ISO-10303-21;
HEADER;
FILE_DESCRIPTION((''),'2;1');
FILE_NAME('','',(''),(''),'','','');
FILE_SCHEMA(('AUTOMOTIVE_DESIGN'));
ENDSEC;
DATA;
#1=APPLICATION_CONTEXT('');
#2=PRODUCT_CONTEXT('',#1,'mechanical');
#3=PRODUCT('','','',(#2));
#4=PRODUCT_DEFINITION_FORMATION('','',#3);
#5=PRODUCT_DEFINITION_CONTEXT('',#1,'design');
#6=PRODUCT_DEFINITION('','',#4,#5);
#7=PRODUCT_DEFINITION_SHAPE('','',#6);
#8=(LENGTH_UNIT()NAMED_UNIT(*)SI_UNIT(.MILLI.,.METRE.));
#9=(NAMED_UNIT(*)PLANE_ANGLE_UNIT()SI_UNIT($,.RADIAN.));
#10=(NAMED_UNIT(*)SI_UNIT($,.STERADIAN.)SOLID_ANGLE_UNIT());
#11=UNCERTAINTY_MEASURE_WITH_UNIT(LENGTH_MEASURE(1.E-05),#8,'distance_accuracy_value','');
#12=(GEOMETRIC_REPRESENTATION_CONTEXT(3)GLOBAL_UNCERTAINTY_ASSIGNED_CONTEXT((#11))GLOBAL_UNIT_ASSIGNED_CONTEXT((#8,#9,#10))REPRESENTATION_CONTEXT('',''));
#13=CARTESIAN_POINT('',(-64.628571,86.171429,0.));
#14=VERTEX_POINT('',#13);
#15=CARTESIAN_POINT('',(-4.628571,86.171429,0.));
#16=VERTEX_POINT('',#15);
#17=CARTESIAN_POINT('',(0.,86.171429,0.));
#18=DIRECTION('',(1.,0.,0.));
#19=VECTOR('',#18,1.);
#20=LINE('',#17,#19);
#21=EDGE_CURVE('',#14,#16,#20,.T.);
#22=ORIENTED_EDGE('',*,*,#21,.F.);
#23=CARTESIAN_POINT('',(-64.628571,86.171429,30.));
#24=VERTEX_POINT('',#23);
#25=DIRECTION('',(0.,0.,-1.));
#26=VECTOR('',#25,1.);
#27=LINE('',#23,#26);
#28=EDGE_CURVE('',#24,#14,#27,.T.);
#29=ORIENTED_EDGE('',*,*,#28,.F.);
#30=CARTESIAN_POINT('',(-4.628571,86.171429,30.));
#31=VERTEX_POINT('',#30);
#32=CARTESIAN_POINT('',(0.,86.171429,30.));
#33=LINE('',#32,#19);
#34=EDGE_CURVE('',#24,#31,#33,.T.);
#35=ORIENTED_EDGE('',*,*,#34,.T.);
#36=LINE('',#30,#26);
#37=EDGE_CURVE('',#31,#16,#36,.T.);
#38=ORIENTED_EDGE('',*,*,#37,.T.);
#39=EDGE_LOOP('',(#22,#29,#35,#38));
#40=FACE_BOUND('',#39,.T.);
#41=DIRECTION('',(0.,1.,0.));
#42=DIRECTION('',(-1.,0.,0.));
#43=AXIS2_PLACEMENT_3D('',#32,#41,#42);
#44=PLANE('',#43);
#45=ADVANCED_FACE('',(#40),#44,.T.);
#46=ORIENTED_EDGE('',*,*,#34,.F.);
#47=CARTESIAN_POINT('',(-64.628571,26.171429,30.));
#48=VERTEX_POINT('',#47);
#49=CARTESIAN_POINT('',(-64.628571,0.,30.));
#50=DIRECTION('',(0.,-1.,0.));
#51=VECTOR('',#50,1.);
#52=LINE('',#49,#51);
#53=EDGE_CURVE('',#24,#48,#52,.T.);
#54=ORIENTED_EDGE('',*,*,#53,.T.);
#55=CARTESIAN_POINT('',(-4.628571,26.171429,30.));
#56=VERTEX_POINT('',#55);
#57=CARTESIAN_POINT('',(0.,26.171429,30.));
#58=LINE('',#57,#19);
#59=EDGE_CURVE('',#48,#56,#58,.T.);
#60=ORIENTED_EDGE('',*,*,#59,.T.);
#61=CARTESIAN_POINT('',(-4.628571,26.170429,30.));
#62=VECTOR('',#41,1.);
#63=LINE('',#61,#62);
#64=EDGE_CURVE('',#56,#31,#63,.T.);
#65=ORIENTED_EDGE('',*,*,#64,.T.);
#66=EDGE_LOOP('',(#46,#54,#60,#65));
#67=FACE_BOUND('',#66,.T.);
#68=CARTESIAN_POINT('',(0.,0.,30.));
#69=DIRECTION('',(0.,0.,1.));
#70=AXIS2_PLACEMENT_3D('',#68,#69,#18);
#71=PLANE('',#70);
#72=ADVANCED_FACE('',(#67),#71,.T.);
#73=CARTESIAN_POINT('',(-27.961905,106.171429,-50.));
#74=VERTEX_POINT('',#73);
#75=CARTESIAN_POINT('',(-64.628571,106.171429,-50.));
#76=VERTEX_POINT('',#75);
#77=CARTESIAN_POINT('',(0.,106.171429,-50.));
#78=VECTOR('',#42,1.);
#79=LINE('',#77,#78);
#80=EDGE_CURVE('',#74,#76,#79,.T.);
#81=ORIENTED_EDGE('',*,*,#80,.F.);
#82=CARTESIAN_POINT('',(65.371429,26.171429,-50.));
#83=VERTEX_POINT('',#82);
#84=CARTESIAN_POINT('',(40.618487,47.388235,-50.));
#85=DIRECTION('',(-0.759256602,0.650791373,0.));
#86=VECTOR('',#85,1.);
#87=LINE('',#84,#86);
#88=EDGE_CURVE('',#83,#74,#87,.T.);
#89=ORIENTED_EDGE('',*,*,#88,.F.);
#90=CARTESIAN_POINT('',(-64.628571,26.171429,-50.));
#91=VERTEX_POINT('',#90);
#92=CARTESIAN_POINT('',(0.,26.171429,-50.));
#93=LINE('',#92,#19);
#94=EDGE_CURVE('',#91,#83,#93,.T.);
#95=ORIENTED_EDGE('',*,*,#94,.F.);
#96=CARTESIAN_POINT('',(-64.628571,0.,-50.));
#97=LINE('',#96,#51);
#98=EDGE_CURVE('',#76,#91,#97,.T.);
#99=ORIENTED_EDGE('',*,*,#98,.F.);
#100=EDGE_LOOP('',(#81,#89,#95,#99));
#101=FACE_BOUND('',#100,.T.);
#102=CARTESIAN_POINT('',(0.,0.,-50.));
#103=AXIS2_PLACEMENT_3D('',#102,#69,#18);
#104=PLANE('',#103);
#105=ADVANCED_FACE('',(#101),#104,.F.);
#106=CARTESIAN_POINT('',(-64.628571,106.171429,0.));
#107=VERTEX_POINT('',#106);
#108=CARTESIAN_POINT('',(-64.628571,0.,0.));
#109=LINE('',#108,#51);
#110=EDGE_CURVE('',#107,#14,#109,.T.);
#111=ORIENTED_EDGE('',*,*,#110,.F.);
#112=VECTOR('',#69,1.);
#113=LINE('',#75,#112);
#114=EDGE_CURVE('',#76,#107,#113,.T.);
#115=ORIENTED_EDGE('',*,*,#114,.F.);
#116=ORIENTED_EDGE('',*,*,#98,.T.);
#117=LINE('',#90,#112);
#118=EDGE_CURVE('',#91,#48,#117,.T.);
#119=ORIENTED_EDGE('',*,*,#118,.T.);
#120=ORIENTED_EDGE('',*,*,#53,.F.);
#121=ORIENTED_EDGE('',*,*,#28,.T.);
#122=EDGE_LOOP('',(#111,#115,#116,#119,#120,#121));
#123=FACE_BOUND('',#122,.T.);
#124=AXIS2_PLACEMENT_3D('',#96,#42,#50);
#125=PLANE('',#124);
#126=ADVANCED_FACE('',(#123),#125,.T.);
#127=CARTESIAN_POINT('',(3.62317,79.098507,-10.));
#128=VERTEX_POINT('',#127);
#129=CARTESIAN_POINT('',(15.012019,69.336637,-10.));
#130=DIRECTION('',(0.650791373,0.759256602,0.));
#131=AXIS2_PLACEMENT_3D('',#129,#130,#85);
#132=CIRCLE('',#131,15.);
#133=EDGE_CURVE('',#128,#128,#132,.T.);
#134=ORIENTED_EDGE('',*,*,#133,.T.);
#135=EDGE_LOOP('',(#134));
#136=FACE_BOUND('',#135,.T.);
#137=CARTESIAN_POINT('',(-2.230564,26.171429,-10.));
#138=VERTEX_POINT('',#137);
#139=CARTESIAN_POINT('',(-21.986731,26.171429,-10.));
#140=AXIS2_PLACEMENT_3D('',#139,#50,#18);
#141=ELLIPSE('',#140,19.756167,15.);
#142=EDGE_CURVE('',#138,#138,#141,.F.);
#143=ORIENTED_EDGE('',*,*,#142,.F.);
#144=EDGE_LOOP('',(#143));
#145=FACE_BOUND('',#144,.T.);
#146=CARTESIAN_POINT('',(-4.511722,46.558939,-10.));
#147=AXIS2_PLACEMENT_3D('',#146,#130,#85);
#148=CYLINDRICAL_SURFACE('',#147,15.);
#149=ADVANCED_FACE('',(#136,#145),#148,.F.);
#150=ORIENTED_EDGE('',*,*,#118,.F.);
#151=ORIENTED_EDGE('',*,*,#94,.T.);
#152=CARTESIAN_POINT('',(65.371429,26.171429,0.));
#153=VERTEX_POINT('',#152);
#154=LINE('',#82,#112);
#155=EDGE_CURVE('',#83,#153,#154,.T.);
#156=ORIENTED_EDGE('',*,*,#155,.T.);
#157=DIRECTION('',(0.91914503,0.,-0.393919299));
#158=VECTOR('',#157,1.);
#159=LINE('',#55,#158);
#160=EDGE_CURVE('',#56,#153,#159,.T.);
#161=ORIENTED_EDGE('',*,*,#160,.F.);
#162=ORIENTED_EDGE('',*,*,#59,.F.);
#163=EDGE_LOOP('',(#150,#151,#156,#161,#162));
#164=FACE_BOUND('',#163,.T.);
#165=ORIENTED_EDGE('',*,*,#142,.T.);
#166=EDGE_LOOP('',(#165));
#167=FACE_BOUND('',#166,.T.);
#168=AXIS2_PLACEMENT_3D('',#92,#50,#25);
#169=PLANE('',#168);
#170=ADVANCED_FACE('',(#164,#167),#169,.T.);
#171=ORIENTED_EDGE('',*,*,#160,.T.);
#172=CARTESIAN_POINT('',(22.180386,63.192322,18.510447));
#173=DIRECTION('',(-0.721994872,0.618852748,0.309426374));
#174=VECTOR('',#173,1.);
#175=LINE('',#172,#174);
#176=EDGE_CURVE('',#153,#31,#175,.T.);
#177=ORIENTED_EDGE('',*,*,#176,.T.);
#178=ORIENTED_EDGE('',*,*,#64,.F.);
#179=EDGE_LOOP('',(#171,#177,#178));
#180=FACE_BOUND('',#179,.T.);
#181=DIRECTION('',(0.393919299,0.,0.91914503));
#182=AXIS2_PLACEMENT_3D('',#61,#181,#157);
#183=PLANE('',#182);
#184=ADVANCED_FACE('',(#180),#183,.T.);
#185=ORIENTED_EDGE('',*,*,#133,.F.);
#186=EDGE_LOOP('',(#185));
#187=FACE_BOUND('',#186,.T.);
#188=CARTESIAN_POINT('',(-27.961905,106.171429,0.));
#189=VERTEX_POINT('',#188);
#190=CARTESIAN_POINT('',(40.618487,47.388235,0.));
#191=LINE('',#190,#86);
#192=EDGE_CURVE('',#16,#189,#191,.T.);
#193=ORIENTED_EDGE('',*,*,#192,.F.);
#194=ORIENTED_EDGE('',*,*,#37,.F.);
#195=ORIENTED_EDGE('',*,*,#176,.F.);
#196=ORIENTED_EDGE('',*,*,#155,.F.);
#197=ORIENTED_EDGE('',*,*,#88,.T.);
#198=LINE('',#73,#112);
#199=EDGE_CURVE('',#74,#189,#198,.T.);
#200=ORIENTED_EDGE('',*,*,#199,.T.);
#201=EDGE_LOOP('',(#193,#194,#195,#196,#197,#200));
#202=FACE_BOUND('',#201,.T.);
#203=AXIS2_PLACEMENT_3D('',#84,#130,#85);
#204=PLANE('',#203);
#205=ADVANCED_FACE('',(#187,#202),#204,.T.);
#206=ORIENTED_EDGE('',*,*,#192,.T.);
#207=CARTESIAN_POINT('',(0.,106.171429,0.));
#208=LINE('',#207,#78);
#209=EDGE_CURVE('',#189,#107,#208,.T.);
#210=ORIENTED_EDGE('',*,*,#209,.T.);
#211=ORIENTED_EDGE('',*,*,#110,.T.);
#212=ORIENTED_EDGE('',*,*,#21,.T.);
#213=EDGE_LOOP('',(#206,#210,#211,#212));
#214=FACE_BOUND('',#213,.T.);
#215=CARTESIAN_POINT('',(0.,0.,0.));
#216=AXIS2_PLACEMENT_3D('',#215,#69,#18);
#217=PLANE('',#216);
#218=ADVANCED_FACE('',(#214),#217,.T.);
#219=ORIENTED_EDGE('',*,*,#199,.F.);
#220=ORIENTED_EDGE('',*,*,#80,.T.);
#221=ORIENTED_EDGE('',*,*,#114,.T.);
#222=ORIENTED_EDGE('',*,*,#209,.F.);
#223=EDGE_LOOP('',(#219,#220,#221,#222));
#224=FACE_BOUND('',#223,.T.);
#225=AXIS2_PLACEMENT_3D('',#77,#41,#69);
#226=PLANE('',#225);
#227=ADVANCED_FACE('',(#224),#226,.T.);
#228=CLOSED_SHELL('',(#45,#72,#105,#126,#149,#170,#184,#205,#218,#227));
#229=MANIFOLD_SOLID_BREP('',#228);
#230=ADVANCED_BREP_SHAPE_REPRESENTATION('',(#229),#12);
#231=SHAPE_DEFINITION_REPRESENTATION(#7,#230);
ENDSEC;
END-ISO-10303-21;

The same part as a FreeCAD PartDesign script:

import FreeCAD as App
import Part
import Sketcher

V = App.Vector


def add_polygon(sketch, points):
    """Adds a closed chain of lines whose ends are joined by coincident constraints."""
    first, n = sketch.GeometryCount, len(points)
    for a, b in zip(points, points[1:] + points[:1]):
        sketch.addGeometry(Part.LineSegment(App.Vector(*a, 0), App.Vector(*b, 0)), False)
    for i in range(n):
        sketch.addConstraint(Sketcher.Constraint("Coincident", first + i, 2, first + (i + 1) % n, 1))

doc = App.newDocument("Part")
body = doc.addObject("PartDesign::Body", "Body")

# Sketch on XY plane
sketch1 = body.newObject("Sketcher::SketchObject", "Sketch")
sketch1.AttachmentSupport = (doc.getObject("XY_Plane"), [""])
sketch1.MapMode = "FlatFace"
add_polygon(sketch1, [(-28, 106), (-65, 106), (-65, 26), (65, 26), (-5, 86)])  # lines 0-4
sketch1.addConstraint([
    Sketcher.Constraint("Horizontal", 0),
    Sketcher.Constraint("Vertical", 1),
    Sketcher.Constraint("Horizontal", 2),
    Sketcher.Constraint("Parallel", 3, 4),
    Sketcher.Constraint("DistanceX", 2, 1, 2, 2, 130.0),
    Sketcher.Constraint("DistanceY", 1, 2, 1, 1, 80.0),
    Sketcher.Constraint("DistanceX", 0, 2, 3, 2, 60.0),
    Sketcher.Constraint("DistanceY", 3, 2, 0, 2, 20.0),
    Sketcher.Constraint("DistanceX", 0, 2, -1, 1, 64.628571),
    Sketcher.Constraint("DistanceY", -1, 1, 0, 2, 106.171429),
])
pad1 = body.newObject("PartDesign::Pad", "Pad")
pad1.Profile = sketch1
pad1.Length = 50
pad1.Reversed = True

# Sketch on XY plane
sketch2 = body.newObject("Sketcher::SketchObject", "Sketch001")
sketch2.AttachmentSupport = (doc.getObject("XY_Plane"), [""])
sketch2.MapMode = "FlatFace"
add_polygon(sketch2, [(-65, 86), (-65, 26), (65, 26), (-5, 86)])  # lines 0-3
sketch2.addConstraint([
    Sketcher.Constraint("Vertical", 0),
    Sketcher.Constraint("Horizontal", 1),
    Sketcher.Constraint("Horizontal", 3),
    Sketcher.Constraint("Equal", 3, 0),
    Sketcher.Constraint("DistanceX", 1, 1, 1, 2, 130.0),
    Sketcher.Constraint("DistanceX", 3, 2, 3, 1, 60.0),
    Sketcher.Constraint("DistanceX", 0, 2, -1, 1, 64.628571),
    Sketcher.Constraint("DistanceY", -1, 1, 0, 2, 26.171429),
])
pad2 = body.newObject("PartDesign::Pad", "Pad001")
pad2.Profile = sketch2
pad2.Length = 30

# Sketch on an angled plane
sketch3 = body.newObject("Sketcher::SketchObject", "Sketch002")
sketch3.Placement = App.Placement(V(40.618487, 47.388235, 0), App.Rotation(V(0.759256602, -0.650791373, 0), V(0, 0, -0.999999999), V(0.650791373, 0.759256602, 0), "ZXY"))
sketch3.addGeometry(Part.Circle(V(-34, 10, 0), V(0, 0, 1), 15), False)
sketch3.addConstraint([
    Sketcher.Constraint("Diameter", 0, 30.0),
    Sketcher.Constraint("DistanceY", -1, 1, 0, 3, 10.0),
    Sketcher.Constraint("DistanceX", 0, 3, -1, 1, 33.725711),
])
pocket1 = body.newObject("PartDesign::Pocket", "Pocket")
pocket1.Profile = sketch3
pocket1.Length = 30

# Sketch on XZ plane
sketch4 = body.newObject("Sketcher::SketchObject", "Sketch003")
sketch4.AttachmentSupport = (doc.getObject("XZ_Plane"), [""])
sketch4.MapMode = "FlatFace"
sketch4.AttachmentOffset = App.Placement(V(0, 0, -86.171429), App.Rotation())
add_polygon(sketch4, [(-5, 30), (65, 30), (65, 0)])  # lines 0-2
sketch4.addConstraint([
    Sketcher.Constraint("Horizontal", 0),
    Sketcher.Constraint("Vertical", 1),
    Sketcher.Constraint("PointOnObject", 1, 2, -1),
    Sketcher.Constraint("DistanceX", 0, 1, 0, 2, 70.0),
    Sketcher.Constraint("DistanceY", 1, 2, 1, 1, 30.0),
    Sketcher.Constraint("DistanceX", -1, 1, 0, 2, 65.371429),
])
pocket2 = body.newObject("PartDesign::Pocket", "Pocket001")
pocket2.Profile = sketch4
pocket2.Length = 60
pocket2.Reversed = True

# Sketch on an angled plane
sketch5 = body.newObject("Sketcher::SketchObject", "Sketch004")
sketch5.Placement = App.Placement(V(40.618487, 47.388235, 0), App.Rotation(V(0.759256602, -0.650791373, 0), V(0, 0, -0.999999999), V(0.650791373, 0.759256602, 0), "ZXY"))
sketch5.addGeometry(Part.Circle(V(-34, 10, 0), V(0, 0, 1), 15), False)
sketch5.addConstraint([
    Sketcher.Constraint("Diameter", 0, 30.0),
    Sketcher.Constraint("DistanceY", -1, 1, 0, 3, 10.0),
    Sketcher.Constraint("DistanceX", 0, 3, -1, 1, 33.725711),
])
pocket3 = body.newObject("PartDesign::Pocket", "Pocket002")
pocket3.Profile = sketch5
pocket3.Length = 69.709079

doc.recompute()
